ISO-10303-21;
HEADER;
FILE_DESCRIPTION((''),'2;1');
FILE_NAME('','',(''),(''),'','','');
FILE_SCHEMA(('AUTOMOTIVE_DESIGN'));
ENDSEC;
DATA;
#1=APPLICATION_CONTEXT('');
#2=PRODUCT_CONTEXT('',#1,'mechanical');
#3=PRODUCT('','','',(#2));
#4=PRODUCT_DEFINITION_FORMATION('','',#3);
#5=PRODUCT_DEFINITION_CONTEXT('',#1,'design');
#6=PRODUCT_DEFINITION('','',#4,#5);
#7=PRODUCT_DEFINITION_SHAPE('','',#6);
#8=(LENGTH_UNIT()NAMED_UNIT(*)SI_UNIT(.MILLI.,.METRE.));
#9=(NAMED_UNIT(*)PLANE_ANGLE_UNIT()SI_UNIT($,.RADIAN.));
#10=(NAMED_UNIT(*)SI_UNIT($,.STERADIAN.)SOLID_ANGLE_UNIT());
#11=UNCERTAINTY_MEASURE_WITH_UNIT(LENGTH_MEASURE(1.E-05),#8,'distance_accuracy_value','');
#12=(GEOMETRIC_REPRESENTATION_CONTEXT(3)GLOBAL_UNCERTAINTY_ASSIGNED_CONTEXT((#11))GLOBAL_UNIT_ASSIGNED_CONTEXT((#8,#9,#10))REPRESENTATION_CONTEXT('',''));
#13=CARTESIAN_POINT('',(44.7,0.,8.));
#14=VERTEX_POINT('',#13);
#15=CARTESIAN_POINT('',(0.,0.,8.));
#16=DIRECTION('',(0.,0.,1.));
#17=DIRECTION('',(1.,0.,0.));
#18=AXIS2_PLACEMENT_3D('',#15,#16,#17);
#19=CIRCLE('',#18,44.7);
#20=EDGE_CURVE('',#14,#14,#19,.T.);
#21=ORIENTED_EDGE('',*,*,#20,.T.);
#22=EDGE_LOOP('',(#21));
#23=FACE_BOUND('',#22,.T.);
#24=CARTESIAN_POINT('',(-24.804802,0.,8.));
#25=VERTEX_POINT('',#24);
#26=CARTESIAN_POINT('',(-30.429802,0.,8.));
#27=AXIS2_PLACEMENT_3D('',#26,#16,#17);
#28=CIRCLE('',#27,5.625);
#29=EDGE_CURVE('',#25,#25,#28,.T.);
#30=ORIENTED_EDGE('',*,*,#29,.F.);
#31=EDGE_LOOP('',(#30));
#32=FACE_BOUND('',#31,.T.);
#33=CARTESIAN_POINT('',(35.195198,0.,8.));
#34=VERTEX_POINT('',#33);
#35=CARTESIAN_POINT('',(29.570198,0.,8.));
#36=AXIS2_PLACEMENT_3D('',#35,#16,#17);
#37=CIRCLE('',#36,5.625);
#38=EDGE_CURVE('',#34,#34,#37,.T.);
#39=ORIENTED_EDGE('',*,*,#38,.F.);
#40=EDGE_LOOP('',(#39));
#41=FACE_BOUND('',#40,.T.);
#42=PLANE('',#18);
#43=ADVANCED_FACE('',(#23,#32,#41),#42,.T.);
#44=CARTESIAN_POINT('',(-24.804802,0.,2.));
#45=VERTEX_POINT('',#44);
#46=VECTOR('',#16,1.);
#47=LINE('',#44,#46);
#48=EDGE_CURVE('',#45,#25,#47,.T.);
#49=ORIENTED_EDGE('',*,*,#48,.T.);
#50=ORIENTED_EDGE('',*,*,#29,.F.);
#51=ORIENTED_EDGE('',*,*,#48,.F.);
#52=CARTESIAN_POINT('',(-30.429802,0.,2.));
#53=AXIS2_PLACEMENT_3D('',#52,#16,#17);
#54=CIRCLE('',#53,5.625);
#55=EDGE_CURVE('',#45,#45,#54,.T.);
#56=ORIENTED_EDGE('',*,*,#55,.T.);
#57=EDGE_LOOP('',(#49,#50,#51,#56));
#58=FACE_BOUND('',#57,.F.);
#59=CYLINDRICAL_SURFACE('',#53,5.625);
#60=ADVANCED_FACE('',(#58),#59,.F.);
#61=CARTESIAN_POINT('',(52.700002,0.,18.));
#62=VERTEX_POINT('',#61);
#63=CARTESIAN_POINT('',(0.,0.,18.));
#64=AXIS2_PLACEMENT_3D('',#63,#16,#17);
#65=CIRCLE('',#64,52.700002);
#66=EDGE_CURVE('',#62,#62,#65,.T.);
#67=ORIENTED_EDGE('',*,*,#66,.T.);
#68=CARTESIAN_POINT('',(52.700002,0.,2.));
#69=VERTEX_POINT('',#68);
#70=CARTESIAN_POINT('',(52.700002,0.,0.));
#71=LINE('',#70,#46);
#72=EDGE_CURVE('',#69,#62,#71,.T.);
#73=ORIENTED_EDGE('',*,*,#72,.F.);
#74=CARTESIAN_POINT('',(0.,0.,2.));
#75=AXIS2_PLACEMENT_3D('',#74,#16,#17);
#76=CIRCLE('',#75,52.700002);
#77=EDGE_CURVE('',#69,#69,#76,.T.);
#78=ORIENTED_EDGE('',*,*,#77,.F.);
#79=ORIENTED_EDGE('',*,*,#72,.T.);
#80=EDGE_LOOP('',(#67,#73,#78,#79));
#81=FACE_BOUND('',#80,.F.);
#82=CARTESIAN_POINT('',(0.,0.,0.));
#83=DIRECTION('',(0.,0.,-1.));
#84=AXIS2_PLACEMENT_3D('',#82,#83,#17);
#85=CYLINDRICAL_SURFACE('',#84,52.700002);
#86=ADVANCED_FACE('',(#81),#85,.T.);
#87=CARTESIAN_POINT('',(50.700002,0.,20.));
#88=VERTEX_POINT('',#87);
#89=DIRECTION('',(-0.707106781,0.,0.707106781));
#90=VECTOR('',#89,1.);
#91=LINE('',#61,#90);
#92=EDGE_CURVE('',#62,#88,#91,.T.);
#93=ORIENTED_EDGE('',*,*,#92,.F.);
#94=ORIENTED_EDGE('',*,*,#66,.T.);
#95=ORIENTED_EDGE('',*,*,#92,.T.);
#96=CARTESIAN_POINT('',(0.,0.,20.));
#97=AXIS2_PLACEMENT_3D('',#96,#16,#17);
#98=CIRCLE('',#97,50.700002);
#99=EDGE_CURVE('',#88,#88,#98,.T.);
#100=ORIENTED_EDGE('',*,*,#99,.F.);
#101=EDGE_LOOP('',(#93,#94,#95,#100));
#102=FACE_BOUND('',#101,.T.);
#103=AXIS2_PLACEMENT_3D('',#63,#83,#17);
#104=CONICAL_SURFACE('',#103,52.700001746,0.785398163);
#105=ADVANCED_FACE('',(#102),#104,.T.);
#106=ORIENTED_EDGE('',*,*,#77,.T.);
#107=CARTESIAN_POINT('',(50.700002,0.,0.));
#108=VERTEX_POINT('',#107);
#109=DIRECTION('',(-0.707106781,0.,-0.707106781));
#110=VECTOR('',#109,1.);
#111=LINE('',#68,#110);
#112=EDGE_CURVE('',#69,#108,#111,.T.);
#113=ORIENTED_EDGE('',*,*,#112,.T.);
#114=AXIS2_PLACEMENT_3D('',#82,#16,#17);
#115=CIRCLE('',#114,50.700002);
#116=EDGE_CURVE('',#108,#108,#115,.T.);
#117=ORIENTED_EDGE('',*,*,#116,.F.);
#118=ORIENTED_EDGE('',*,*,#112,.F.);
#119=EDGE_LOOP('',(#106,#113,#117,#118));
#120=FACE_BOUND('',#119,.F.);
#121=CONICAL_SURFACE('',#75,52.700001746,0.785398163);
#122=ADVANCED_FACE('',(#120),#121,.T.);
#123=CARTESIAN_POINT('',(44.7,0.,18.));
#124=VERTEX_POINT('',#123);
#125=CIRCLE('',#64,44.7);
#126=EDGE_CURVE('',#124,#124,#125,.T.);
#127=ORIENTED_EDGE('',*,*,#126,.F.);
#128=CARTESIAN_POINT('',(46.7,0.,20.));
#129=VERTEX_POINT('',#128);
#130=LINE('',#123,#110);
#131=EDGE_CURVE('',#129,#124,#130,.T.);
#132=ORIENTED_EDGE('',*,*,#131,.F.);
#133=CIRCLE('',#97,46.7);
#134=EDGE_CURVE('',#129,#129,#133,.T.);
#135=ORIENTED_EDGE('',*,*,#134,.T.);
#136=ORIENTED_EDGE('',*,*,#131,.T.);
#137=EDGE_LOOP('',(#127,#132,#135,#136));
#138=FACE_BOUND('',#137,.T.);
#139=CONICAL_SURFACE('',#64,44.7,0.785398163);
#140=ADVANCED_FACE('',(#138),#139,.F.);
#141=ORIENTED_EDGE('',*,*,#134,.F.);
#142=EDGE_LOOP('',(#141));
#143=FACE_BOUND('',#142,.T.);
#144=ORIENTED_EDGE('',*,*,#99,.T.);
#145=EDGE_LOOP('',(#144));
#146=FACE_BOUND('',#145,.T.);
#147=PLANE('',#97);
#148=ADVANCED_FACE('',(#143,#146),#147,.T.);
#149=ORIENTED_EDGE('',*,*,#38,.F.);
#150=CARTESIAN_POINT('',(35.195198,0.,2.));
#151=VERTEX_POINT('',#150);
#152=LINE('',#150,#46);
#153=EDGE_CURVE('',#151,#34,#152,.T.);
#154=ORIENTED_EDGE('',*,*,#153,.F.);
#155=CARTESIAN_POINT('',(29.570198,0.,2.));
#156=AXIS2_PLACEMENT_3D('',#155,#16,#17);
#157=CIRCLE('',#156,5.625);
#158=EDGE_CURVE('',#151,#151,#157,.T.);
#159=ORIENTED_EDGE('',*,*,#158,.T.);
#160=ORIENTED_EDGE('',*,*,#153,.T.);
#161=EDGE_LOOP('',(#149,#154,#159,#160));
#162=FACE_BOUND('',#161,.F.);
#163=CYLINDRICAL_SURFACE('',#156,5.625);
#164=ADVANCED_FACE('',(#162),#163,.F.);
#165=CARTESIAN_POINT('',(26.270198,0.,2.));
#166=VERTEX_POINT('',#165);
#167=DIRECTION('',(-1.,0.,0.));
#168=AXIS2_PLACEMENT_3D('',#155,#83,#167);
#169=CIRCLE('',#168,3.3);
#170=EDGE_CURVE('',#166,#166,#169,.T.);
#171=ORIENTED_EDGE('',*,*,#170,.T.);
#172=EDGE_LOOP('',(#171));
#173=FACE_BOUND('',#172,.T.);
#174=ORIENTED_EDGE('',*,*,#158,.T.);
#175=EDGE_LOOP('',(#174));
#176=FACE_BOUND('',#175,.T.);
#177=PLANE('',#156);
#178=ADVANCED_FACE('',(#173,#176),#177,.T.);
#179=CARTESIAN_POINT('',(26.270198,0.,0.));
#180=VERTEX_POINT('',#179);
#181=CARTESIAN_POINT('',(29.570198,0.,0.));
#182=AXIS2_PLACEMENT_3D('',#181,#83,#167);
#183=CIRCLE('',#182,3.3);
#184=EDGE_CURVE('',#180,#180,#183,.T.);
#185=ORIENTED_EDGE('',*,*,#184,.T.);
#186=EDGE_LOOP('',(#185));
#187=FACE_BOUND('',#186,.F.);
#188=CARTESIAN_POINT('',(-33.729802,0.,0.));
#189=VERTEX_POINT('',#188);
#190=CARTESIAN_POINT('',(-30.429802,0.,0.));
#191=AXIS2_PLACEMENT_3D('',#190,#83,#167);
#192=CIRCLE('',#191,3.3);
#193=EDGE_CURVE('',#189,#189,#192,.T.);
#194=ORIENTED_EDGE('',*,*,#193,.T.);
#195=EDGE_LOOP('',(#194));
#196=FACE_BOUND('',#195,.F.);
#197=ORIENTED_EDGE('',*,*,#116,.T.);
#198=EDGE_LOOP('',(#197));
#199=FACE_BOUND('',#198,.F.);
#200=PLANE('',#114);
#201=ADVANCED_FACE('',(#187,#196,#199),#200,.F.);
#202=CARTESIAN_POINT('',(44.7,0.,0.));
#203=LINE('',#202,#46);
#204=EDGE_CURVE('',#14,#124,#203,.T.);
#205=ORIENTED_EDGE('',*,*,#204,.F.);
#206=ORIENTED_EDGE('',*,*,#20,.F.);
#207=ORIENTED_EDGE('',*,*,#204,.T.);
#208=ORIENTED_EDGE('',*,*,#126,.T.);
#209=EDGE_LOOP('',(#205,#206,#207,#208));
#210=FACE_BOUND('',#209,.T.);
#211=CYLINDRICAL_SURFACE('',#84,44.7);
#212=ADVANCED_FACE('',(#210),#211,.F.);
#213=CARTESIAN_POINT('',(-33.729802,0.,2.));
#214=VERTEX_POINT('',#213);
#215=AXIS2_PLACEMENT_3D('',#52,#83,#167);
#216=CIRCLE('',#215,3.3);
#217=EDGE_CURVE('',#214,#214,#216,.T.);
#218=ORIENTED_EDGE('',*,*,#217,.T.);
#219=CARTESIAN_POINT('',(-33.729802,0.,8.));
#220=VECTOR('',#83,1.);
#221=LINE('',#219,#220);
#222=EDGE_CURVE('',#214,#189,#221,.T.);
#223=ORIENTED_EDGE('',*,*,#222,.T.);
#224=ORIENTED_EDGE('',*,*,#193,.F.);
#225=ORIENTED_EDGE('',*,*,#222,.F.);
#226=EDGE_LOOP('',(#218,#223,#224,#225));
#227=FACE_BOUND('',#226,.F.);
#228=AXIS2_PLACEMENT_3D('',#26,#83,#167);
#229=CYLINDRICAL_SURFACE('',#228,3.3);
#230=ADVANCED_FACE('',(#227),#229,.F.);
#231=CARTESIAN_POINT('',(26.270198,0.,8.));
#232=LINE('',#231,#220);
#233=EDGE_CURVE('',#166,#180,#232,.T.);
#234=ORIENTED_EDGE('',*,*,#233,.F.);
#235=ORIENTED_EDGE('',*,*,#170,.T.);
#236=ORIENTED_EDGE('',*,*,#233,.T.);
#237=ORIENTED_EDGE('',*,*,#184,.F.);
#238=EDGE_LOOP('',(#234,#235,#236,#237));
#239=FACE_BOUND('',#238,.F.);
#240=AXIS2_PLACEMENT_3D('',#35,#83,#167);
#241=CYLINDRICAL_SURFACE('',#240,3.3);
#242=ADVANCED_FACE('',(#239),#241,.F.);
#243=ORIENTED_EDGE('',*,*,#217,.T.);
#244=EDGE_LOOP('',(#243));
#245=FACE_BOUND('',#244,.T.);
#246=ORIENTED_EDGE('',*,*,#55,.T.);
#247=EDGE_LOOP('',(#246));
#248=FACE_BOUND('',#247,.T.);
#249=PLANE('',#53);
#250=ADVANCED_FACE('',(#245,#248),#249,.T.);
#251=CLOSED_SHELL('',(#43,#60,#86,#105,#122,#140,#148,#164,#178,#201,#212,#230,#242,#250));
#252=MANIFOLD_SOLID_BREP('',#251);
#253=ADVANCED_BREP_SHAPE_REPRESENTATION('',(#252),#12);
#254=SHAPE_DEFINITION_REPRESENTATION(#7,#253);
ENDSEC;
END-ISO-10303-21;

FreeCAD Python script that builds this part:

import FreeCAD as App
import Part
import Sketcher
Q = App.Units.Quantity


def edges_at(feature, points):
    """Names of the edges that pass closest to the given points."""
    edges = feature.Shape.Edges
    near = lambda p: min(range(len(edges)), key=lambda i: edges[i].distToShape(Part.Vertex(*p))[0])
    return sorted({f"Edge{near(p) + 1}" for p in points})

doc = App.newDocument("Part")
params = doc.addObject("Spreadsheet::Sheet", "Params")
for row, (alias, value) in enumerate([
    ("sketch1_diameter", "89.4 mm"),
    ("pad1_length", "8 mm"),
    ("sketch2_diameter", "89.4 mm"),
    ("pad2_length", "20 mm"),
    ("sketch3_diameter", "6.6 mm"),
    ("hole_diameter", "6.6 mm"),
    ("hole_cbore_diameter", "11.25 mm"),
    ("hole_cbore_depth", "6 mm"),
    ("chamfer_size", "2 mm"),
], start=1):
    params.set(f"A{row}", alias)
    params.set(f"B{row}", "=" + value)
    params.setAlias(f"B{row}", alias)

body = doc.addObject("PartDesign::Body", "Body")

sketch1 = body.newObject("Sketcher::SketchObject", "Sketch")
sketch1.AttachmentSupport = (doc.getObject("XY_Plane"), [""])
sketch1.MapMode = "FlatFace"
sketch1.addGeometry(Part.Circle(App.Vector(0, 0, 0), App.Vector(0, 0, 1), 45), False)
sketch1.addConstraint([
    Sketcher.Constraint("Coincident", 0, 3, -1, 1),
    Sketcher.Constraint("Diameter", 0, Q("89.4 mm")),
])
sketch1.setExpression("Constraints[1]", "Params.sketch1_diameter")
pad1 = body.newObject("PartDesign::Pad", "Pad")
pad1.Profile = sketch1
pad1.setExpression("Length", "Params.pad1_length")

sketch2 = body.newObject("Sketcher::SketchObject", "Sketch001")
sketch2.AttachmentSupport = (doc.getObject("XY_Plane"), [""])
sketch2.MapMode = "FlatFace"
sketch2.addGeometry([
    Part.Circle(App.Vector(0, 0, 0), App.Vector(0, 0, 1), 53),
    Part.Circle(App.Vector(0, 0, 0), App.Vector(0, 0, 1), 45),
], False)
sketch2.addConstraint([
    Sketcher.Constraint("Coincident", 0, 3, -1, 1),
    Sketcher.Constraint("Coincident", 1, 3, -1, 1),
    Sketcher.Constraint("Diameter", 1, Q("89.4 mm")),
    Sketcher.Constraint("Diameter", 0, Q("105.400003 mm")),
])
sketch2.setExpression("Constraints[2]", "Params.sketch2_diameter")
pad2 = body.newObject("PartDesign::Pad", "Pad001")
pad2.Profile = sketch2
pad2.setExpression("Length", "Params.pad2_length")

sketch3 = body.newObject("Sketcher::SketchObject", "Sketch002")
sketch3.AttachmentSupport = (doc.getObject("XY_Plane"), [""])
sketch3.MapMode = "FlatFace"
sketch3.AttachmentOffset = App.Placement(App.Vector(0, 0, 8), App.Rotation())
sketch3.addGeometry([
    Part.Circle(App.Vector(-30.4, 0, 0), App.Vector(0, 0, 1), 3.3),
    Part.Circle(App.Vector(29.6, 0, 0), App.Vector(0, 0, 1), 3.3),
], False)
sketch3.addConstraint([
    Sketcher.Constraint("Equal", 0, 1),
    Sketcher.Constraint("PointOnObject", 0, 3, -1),
    Sketcher.Constraint("PointOnObject", 1, 3, -1),
    Sketcher.Constraint("Diameter", 0, Q("6.6 mm")),
    Sketcher.Constraint("DistanceX", 0, 3, 1, 3, Q("60 mm")),
    Sketcher.Constraint("DistanceX", 0, 3, -1, 1, Q("30.429802 mm")),
])
sketch3.setExpression("Constraints[3]", "Params.sketch3_diameter")
doc.recompute()
hole = body.newObject("PartDesign::Hole", "Hole")
hole.Profile = sketch3
hole.ThreadType = "None"
hole.setExpression("Diameter", "Params.hole_diameter")
hole.DepthType = "ThroughAll"
hole.HoleCutType = "Counterbore"
hole.setExpression("HoleCutDiameter", "Params.hole_cbore_diameter")
hole.setExpression("HoleCutDepth", "Params.hole_cbore_depth")
doc.recompute()

chamfer = body.newObject("PartDesign::Chamfer", "Chamfer")
chamfer.Base = (hole, edges_at(hole, [(-52.7, 0, 0), (-52.7, 0, 20), (-44.7, 0, 20)]))
chamfer.setExpression("Size", "Params.chamfer_size")

doc.recompute()
